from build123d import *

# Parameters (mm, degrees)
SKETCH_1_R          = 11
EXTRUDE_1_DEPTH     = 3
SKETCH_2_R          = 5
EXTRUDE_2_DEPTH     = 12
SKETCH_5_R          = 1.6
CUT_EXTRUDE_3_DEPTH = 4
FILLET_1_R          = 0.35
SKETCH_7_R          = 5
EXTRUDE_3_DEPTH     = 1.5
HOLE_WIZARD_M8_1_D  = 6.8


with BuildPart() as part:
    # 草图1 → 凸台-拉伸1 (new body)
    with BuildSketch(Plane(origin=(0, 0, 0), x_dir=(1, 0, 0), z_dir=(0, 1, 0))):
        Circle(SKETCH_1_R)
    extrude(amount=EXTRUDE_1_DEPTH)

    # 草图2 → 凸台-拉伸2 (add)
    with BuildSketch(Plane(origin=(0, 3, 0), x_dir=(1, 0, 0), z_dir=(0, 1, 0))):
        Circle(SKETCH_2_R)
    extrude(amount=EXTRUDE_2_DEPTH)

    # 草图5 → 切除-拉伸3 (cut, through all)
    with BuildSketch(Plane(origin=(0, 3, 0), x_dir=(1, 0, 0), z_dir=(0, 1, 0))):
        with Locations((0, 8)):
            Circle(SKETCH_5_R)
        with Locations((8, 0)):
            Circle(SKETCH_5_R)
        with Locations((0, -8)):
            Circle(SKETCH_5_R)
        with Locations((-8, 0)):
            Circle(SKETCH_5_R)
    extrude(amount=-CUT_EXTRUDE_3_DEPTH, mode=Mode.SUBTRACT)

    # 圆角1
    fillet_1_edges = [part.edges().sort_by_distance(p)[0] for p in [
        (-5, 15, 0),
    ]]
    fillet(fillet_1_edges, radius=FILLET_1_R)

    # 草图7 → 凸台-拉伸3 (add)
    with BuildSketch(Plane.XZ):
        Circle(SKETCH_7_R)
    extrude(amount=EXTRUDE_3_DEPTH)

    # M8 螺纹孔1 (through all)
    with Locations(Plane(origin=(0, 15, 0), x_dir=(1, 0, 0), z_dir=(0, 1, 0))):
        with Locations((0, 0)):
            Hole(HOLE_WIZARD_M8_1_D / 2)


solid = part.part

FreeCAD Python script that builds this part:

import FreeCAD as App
import Part
import Sketcher

V = App.Vector
Q = App.Units.Quantity


def edges_at(feature, points):
    """Names of the edges that pass closest to the given points."""
    edges = feature.Shape.Edges
    near = lambda p: min(range(len(edges)), key=lambda i: edges[i].distToShape(Part.Vertex(*p))[0])
    return sorted({f"Edge{near(p) + 1}" for p in points})

doc = App.newDocument("Part")
params = doc.addObject("Spreadsheet::Sheet", "Params")
for row, (alias, value) in enumerate([
    ("sketch1_diameter", "22 mm"),
    ("pad1_length", "3 mm"),
    ("sketch2_diameter", "10 mm"),
    ("pad2_length", "12 mm"),
    ("sketch3_diameter", "3.2 mm"),
    ("fillet_radius", "0.35 mm"),
    ("sketch4_diameter", "10 mm"),
    ("pad3_length", "1.5 mm"),
    ("sketch5_diameter", "6.8 mm"),
    ("hole_diameter", "6.8 mm"),
], start=1):
    params.set(f"A{row}", alias)
    params.set(f"B{row}", "=" + value)
    params.setAlias(f"B{row}", alias)

body = doc.addObject("PartDesign::Body", "Body")

# Sketch on XZ plane
sketch1 = doc.addObject("Sketcher::SketchObject", "Sketch")
body.addObject(sketch1)
sketch1.AttachmentSupport = (doc.XZ_Plane, [""])
sketch1.MapMode = "FlatFace"
sketch1.addGeometry(Part.Circle(V(0, 0, 0), V(0, 0, 1), 11), False)
sketch1.addConstraint(Sketcher.Constraint("Coincident", 0, 3, -1, 1))
sketch1.addConstraint(Sketcher.Constraint("Diameter", 0, Q("22 mm")))
sketch1.setExpression("Constraints[1]", "Params.sketch1_diameter")
pad1 = doc.addObject("PartDesign::Pad", "Pad")
body.addObject(pad1)
pad1.Profile = sketch1
pad1.setExpression("Length", "Params.pad1_length")
pad1.Reversed = True

# Sketch on XZ plane
sketch2 = doc.addObject("Sketcher::SketchObject", "Sketch001")
body.addObject(sketch2)
sketch2.AttachmentSupport = (doc.XZ_Plane, [""])
sketch2.MapMode = "FlatFace"
sketch2.AttachmentOffset = App.Placement(V(0, 0, -3), App.Rotation())
sketch2.addGeometry(Part.Circle(V(0, 0, 0), V(0, 0, 1), 5), False)
sketch2.addConstraint(Sketcher.Constraint("Coincident", 0, 3, -1, 1))
sketch2.addConstraint(Sketcher.Constraint("Diameter", 0, Q("10 mm")))
sketch2.setExpression("Constraints[1]", "Params.sketch2_diameter")
pad2 = doc.addObject("PartDesign::Pad", "Pad001")
body.addObject(pad2)
pad2.Profile = sketch2
pad2.setExpression("Length", "Params.pad2_length")
pad2.Reversed = True

# Sketch on XZ plane
sketch3 = doc.addObject("Sketcher::SketchObject", "Sketch002")
body.addObject(sketch3)
sketch3.AttachmentSupport = (doc.XZ_Plane, [""])
sketch3.MapMode = "FlatFace"
sketch3.AttachmentOffset = App.Placement(V(0, 0, -3), App.Rotation())
sketch3.addGeometry(Part.Circle(V(0, -8, 0), V(0, 0, 1), 1.6), False)
sketch3.addGeometry(Part.Circle(V(8, 0, 0), V(0, 0, 1), 1.6), False)
sketch3.addGeometry(Part.Circle(V(0, 8, 0), V(0, 0, 1), 1.6), False)
sketch3.addGeometry(Part.Circle(V(-8, 0, 0), V(0, 0, 1), 1.6), False)
sketch3.addConstraint(Sketcher.Constraint("Equal", 0, 1))
sketch3.addConstraint(Sketcher.Constraint("Equal", 1, 2))
sketch3.addConstraint(Sketcher.Constraint("Equal", 2, 3))
sketch3.addConstraint(Sketcher.Constraint("Symmetric", 0, 3, 2, 3, -1, 1))
sketch3.addConstraint(Sketcher.Constraint("Symmetric", 1, 3, 3, 3, -1, 1))
sketch3.addConstraint(Sketcher.Constraint("PointOnObject", 0, 3, -2))
sketch3.addConstraint(Sketcher.Constraint("PointOnObject", 1, 3, -1))
sketch3.addConstraint(Sketcher.Constraint("Diameter", 0, Q("3.2 mm")))
sketch3.addConstraint(Sketcher.Constraint("DistanceY", 0, 3, -1, 1, Q("8 mm")))
sketch3.addConstraint(Sketcher.Constraint("DistanceX", -1, 1, 1, 3, Q("8 mm")))
sketch3.setExpression("Constraints[7]", "Params.sketch3_diameter")
pocket1 = doc.addObject("PartDesign::Pocket", "Pocket")
body.addObject(pocket1)
pocket1.Profile = sketch3
pocket1.Type = "ThroughAll"
pocket1.Reversed = True
doc.recompute()

fillet = doc.addObject("PartDesign::Fillet", "Fillet")
body.addObject(fillet)
fillet.Base = (pocket1, edges_at(pocket1, [(-5, 15, 0)]))
fillet.setExpression("Radius", "Params.fillet_radius")

# Sketch on XZ plane
sketch4 = doc.addObject("Sketcher::SketchObject", "Sketch003")
body.addObject(sketch4)
sketch4.AttachmentSupport = (doc.XZ_Plane, [""])
sketch4.MapMode = "FlatFace"
sketch4.addGeometry(Part.Circle(V(0, 0, 0), V(0, 0, 1), 5), False)
sketch4.addConstraint(Sketcher.Constraint("Coincident", 0, 3, -1, 1))
sketch4.addConstraint(Sketcher.Constraint("Diameter", 0, Q("10 mm")))
sketch4.setExpression("Constraints[1]", "Params.sketch4_diameter")
pad3 = doc.addObject("PartDesign::Pad", "Pad002")
body.addObject(pad3)
pad3.Profile = sketch4
pad3.setExpression("Length", "Params.pad3_length")

# Sketch on XZ plane
sketch5 = doc.addObject("Sketcher::SketchObject", "Sketch004")
body.addObject(sketch5)
sketch5.AttachmentSupport = (doc.XZ_Plane, [""])
sketch5.MapMode = "FlatFace"
sketch5.AttachmentOffset = App.Placement(V(0, 0, -15), App.Rotation())
sketch5.addGeometry(Part.Circle(V(0, 0, 0), V(0, 0, 1), 3.4), False)
sketch5.addConstraint(Sketcher.Constraint("Coincident", 0, 3, -1, 1))
sketch5.addConstraint(Sketcher.Constraint("Diameter", 0, Q("6.8 mm")))
sketch5.setExpression("Constraints[1]", "Params.sketch5_diameter")
doc.recompute()
hole = doc.addObject("PartDesign::Hole", "Hole")
body.addObject(hole)
hole.Profile = sketch5
hole.ThreadType = "None"
hole.setExpression("Diameter", "Params.hole_diameter")
hole.DepthType = "ThroughAll"
hole.Reversed = True

doc.recompute()
